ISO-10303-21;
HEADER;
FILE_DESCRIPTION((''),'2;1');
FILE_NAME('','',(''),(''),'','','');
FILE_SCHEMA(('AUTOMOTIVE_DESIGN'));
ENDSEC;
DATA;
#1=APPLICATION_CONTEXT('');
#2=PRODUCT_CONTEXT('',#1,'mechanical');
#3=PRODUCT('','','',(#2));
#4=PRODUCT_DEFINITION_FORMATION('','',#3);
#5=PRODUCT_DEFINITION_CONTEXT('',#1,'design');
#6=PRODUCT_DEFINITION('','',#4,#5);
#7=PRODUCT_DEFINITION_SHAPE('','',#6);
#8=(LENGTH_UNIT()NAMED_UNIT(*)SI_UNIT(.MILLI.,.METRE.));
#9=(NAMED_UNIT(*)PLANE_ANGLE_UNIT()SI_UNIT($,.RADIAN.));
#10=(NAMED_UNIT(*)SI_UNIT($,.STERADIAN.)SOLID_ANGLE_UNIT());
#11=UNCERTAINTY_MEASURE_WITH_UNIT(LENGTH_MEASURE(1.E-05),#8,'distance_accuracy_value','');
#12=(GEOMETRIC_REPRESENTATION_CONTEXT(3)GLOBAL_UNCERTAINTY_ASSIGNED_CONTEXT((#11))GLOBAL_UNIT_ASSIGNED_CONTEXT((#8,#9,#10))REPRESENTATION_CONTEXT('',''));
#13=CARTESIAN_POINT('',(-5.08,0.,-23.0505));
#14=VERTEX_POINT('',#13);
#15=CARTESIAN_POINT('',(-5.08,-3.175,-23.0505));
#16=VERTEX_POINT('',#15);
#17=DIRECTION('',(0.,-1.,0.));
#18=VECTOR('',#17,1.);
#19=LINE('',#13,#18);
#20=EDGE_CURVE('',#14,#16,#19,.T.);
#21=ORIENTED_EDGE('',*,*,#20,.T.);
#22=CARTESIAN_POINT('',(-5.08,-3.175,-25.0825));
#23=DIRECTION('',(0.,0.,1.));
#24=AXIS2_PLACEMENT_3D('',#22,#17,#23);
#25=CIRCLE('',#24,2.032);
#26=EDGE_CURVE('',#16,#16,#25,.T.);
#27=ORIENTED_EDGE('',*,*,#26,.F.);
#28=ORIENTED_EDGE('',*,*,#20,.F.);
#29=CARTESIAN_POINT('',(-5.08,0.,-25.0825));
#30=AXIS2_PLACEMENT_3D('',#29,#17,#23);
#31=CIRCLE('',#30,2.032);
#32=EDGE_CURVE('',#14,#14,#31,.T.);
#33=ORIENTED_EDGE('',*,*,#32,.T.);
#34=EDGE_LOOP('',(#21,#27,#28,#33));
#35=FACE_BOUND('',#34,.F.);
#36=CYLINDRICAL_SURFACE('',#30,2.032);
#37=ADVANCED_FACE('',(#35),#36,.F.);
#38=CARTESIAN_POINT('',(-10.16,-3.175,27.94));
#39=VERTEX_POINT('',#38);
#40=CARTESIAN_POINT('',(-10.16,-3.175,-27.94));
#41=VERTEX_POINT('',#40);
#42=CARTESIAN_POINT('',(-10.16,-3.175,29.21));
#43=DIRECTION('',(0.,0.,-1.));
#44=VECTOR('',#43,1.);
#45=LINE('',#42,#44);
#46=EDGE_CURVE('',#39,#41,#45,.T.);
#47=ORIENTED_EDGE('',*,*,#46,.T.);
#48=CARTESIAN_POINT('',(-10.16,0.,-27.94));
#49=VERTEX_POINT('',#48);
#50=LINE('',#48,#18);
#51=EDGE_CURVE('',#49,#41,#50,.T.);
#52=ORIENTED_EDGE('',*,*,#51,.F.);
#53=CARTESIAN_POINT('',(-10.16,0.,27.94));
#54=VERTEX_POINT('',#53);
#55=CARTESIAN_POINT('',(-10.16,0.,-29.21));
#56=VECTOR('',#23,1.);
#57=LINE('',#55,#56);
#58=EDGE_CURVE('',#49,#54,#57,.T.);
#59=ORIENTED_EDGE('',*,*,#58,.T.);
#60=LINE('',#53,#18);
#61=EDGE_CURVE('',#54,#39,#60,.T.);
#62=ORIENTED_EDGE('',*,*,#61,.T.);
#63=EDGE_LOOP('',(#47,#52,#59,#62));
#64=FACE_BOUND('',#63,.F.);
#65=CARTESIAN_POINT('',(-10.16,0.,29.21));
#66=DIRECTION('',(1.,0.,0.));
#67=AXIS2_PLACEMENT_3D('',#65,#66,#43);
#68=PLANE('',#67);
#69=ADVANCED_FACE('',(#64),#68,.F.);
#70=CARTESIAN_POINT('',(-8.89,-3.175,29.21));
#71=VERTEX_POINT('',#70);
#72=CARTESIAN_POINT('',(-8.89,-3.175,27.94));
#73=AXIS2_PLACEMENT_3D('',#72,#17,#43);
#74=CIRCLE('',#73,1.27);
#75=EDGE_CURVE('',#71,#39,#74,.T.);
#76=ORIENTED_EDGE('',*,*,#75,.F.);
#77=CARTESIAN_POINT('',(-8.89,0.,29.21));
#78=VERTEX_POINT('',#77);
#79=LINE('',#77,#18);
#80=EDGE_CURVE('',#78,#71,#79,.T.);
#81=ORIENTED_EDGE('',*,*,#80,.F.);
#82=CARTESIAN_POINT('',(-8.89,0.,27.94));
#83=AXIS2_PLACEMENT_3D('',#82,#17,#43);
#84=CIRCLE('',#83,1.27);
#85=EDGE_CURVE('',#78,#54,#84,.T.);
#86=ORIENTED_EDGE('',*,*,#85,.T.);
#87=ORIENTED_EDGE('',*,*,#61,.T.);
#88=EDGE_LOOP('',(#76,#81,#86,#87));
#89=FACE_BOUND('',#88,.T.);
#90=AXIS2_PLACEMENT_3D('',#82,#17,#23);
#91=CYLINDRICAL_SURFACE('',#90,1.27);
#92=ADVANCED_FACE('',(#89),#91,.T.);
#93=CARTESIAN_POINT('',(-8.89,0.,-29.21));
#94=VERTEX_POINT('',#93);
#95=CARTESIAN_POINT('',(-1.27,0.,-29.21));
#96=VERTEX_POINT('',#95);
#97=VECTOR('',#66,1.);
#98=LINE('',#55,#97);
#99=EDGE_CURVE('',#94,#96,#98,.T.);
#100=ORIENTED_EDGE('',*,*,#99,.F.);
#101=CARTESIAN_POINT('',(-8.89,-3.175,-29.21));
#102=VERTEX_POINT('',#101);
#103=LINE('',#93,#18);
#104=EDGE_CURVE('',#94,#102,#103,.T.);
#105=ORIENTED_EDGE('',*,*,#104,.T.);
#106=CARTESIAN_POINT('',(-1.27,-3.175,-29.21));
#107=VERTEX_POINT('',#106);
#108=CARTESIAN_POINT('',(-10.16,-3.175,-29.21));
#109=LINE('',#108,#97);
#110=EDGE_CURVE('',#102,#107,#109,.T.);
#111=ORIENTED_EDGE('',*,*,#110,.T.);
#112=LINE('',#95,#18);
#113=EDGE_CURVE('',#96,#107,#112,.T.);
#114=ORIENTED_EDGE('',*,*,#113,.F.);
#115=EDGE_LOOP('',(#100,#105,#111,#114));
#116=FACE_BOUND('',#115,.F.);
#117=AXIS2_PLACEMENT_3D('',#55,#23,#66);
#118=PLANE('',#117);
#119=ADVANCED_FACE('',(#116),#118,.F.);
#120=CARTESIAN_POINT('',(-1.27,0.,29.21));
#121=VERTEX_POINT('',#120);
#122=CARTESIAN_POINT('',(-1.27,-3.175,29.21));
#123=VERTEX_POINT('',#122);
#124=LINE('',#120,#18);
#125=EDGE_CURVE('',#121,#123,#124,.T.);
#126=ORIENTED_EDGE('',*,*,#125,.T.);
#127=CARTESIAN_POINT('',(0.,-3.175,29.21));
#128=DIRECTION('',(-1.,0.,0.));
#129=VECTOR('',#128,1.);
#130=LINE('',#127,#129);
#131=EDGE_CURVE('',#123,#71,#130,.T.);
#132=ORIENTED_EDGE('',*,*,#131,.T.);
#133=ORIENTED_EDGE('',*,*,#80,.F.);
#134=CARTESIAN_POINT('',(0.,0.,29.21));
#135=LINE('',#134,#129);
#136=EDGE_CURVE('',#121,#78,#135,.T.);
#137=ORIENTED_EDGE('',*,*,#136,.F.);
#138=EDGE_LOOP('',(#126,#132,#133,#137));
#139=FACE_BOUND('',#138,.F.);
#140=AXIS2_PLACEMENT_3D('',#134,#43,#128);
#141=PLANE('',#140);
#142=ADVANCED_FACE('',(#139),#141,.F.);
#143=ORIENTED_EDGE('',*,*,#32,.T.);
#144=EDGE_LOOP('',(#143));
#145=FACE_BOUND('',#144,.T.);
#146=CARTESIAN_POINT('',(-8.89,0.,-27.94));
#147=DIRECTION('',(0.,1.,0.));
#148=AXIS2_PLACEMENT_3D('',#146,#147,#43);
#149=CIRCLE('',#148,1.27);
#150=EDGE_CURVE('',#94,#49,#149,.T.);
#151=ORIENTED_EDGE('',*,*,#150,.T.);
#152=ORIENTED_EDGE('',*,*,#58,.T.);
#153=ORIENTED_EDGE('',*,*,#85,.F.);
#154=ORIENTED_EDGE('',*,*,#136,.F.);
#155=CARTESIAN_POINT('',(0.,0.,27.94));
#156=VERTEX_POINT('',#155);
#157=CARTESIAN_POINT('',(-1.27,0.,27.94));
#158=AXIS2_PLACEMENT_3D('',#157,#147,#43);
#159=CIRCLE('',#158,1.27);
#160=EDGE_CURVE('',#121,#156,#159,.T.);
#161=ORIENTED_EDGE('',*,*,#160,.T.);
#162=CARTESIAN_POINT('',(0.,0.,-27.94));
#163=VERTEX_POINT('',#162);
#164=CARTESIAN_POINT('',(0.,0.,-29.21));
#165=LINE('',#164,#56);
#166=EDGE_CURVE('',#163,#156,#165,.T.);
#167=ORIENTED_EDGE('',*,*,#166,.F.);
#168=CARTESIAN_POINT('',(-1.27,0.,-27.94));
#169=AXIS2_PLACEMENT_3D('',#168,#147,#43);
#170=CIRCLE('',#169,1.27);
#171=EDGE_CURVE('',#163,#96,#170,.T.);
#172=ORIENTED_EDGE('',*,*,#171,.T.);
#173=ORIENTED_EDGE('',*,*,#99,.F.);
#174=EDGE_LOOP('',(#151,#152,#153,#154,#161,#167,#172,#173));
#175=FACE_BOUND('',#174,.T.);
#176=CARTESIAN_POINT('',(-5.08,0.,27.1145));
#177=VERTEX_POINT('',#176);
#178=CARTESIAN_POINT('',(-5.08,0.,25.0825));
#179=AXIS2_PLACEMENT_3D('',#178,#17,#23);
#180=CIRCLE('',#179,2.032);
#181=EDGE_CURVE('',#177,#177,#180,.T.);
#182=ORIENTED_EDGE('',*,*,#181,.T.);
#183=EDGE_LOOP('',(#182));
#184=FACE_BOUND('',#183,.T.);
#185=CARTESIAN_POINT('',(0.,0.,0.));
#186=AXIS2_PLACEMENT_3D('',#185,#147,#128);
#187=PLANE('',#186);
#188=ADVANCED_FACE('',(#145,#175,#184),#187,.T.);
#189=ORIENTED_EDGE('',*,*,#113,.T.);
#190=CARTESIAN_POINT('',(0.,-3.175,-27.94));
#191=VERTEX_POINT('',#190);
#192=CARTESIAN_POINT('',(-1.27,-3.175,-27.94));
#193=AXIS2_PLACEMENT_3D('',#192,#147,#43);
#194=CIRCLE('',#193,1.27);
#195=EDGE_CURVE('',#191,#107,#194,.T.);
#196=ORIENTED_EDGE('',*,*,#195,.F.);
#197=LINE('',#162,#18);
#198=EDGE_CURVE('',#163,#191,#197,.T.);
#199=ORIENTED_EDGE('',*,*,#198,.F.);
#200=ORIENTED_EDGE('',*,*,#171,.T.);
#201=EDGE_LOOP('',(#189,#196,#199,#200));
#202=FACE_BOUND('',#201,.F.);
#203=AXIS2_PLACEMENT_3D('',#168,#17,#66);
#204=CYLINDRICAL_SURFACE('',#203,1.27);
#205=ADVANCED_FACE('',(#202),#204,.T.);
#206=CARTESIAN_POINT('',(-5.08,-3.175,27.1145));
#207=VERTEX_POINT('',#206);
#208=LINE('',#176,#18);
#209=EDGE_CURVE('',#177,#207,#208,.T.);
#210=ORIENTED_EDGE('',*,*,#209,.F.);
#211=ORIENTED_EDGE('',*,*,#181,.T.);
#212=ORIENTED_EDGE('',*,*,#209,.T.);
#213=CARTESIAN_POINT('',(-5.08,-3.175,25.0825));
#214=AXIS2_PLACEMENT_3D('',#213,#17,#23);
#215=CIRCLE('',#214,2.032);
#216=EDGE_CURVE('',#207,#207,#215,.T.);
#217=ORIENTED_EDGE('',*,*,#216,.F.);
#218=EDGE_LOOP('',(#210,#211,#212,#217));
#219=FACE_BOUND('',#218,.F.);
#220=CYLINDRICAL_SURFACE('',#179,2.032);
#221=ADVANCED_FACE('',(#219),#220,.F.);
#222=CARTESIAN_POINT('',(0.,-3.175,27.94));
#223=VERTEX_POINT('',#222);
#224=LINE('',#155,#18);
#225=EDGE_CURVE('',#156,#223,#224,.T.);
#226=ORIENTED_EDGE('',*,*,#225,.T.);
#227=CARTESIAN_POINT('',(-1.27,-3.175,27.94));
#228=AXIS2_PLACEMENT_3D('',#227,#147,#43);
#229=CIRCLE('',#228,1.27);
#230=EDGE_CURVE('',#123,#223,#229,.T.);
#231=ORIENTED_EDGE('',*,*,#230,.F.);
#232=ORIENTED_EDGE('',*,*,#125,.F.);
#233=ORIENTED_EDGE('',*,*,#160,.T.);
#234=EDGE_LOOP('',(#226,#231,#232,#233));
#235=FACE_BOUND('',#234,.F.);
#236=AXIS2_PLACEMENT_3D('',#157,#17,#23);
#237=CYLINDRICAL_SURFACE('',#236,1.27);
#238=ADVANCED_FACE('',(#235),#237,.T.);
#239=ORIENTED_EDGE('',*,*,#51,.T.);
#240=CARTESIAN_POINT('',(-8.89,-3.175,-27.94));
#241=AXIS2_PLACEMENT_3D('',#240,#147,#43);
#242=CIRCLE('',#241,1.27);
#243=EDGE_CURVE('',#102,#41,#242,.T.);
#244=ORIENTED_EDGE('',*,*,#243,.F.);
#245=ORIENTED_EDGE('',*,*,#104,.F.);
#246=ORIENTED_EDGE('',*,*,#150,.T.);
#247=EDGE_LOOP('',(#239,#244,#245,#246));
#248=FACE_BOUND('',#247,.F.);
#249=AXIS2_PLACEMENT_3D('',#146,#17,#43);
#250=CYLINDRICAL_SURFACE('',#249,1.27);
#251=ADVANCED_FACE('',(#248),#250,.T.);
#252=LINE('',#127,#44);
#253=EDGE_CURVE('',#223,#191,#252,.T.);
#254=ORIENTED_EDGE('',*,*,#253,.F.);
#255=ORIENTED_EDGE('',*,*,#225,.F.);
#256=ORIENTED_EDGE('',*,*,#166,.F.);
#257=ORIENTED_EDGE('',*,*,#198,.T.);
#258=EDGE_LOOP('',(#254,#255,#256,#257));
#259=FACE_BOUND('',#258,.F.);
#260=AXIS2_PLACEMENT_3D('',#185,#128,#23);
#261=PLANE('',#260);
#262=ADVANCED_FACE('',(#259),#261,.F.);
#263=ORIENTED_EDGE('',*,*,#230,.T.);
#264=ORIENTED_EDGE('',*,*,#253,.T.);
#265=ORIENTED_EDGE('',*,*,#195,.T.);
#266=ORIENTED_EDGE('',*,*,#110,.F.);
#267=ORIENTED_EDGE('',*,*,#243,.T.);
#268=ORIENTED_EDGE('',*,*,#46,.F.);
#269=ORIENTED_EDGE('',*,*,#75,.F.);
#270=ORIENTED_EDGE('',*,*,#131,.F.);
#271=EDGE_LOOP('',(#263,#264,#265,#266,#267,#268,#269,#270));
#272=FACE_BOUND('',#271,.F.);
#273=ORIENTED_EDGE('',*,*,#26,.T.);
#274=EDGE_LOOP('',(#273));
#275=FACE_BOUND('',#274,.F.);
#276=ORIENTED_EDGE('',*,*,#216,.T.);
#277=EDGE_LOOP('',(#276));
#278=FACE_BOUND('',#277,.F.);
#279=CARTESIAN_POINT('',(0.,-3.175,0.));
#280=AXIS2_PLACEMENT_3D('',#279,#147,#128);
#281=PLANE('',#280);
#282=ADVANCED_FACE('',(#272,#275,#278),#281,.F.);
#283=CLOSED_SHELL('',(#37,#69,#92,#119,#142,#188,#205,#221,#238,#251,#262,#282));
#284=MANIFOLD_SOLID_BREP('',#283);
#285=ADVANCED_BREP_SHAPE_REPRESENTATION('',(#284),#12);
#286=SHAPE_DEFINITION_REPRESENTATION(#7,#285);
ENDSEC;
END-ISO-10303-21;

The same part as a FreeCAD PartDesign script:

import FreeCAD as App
import Part
import Sketcher
from FreeCAD import Vector
Q = App.Units.Quantity


def edges_at(feature, points):
    """Names of the edges that pass closest to the given points."""
    edges = feature.Shape.Edges
    near = lambda p: min(range(len(edges)), key=lambda i: edges[i].distToShape(Part.Vertex(*p))[0])
    return sorted({f"Edge{near(p) + 1}" for p in points})


def add_polygon(sketch, points):
    """Adds a closed chain of lines whose ends are joined by coincident constraints."""
    first, n = sketch.GeometryCount, len(points)
    for a, b in zip(points, points[1:] + points[:1]):
        sketch.addGeometry(Part.LineSegment(App.Vector(*a, 0), App.Vector(*b, 0)), False)
    for i in range(n):
        sketch.addConstraint(Sketcher.Constraint("Coincident", first + i, 2, first + (i + 1) % n, 1))

doc = App.newDocument("Part")
body = doc.addObject("PartDesign::Body", "Body")

# Sketch on XZ plane
sketch1 = body.newObject("Sketcher::SketchObject", "Sketch")
sketch1.AttachmentSupport = (doc.getObject("XZ_Plane"), [""])
sketch1.MapMode = "FlatFace"
add_polygon(sketch1, [(0, 29), (0, -29), (-10, -29), (-10, 29)])  # lines 0-3
sketch1.addConstraint([
    Sketcher.Constraint("Vertical", 0),
    Sketcher.Constraint("Horizontal", 1),
    Sketcher.Constraint("Vertical", 2),
    Sketcher.Constraint("Horizontal", 3),
    Sketcher.Constraint("Symmetric", 0, 2, 3, 2, -1, 1),
    Sketcher.Constraint("DistanceX", 1, 2, 1, 1, Q("0.4 in")),
    Sketcher.Constraint("DistanceY", 0, 2, 0, 1, Q("2.3 in")),
])
pad1 = body.newObject("PartDesign::Pad", "Pad")
pad1.Profile = sketch1
pad1.Length = Q("0.125 in")
doc.recompute()

fillet = body.newObject("PartDesign::Fillet", "Fillet")
fillet.Base = (pad1, edges_at(pad1, [(-10.16, -1.587, 29.21), (-10.16, -1.587, -29.21)]))
fillet.Radius = Q("0.05 in")
doc.recompute()

fillet2 = body.newObject("PartDesign::Fillet", "Fillet001")
fillet2.Base = (fillet, edges_at(fillet, [(0, -1.587, 29.21), (0, -1.587, -29.21)]))
fillet2.Radius = Q("0.05 in")

# Sketch on XZ plane
sketch2 = body.newObject("Sketcher::SketchObject", "Sketch001")
sketch2.AttachmentSupport = (doc.getObject("XZ_Plane"), [""])
sketch2.MapMode = "FlatFace"
sketch2.addGeometry([
    Part.Circle(Vector(-5.1, 25.1, 0), Vector(0, 0, 1), 2),
    Part.Circle(Vector(-5.1, -25.1, 0), Vector(0, 0, 1), 2),
], False)
sketch2.addConstraint([
    Sketcher.Constraint("Equal", 0, 1),
    Sketcher.Constraint("Symmetric", 0, 3, 1, 3, -1),
    Sketcher.Constraint("Diameter", 0, Q("0.16 in")),
    Sketcher.Constraint("DistanceX", 0, 3, -1, 1, Q("0.2 in")),
    Sketcher.Constraint("DistanceY", 1, 3, 0, 3, Q("1.975 in")),
])
doc.recompute()
hole = body.newObject("PartDesign::Hole", "Hole")
hole.Profile = sketch2
hole.ThreadType = "None"
hole.Diameter = Q("0.16 in")
hole.DepthType = "ThroughAll"
hole.Reversed = True

doc.recompute()
